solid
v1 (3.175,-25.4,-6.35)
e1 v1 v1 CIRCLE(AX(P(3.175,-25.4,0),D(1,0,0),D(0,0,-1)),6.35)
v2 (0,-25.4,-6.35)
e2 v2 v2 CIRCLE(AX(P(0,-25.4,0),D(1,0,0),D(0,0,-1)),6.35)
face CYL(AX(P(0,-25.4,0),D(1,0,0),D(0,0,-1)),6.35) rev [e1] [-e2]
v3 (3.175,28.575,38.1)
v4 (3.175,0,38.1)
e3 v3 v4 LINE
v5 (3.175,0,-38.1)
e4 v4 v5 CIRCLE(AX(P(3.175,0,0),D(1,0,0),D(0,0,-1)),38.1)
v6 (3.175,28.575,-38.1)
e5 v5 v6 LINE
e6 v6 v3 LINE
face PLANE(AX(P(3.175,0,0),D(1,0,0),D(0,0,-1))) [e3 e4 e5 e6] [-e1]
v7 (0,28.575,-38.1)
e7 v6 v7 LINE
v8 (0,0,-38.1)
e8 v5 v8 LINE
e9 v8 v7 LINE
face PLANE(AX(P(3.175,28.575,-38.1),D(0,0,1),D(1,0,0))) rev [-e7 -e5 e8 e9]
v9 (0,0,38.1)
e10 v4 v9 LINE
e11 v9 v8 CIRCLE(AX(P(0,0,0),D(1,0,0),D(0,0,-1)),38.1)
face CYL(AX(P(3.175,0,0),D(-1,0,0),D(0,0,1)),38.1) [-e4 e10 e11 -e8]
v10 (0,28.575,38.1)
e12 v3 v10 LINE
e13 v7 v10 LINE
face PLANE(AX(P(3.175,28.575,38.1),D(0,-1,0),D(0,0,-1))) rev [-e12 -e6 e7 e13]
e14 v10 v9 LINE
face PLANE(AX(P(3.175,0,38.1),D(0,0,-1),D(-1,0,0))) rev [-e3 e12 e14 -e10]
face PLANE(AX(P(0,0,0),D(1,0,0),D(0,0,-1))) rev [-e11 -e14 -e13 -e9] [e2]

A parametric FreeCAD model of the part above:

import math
import FreeCAD as App
import Part
import Sketcher

V = App.Vector
Q = App.Units.Quantity

doc = App.newDocument("Part")
body = doc.addObject("PartDesign::Body", "Body")

# Sketch on YZ plane
sketch1 = body.newObject("Sketcher::SketchObject", "Sketch")
sketch1.AttachmentSupport = (doc.getObject("YZ_Plane"), [""])
sketch1.MapMode = "FlatFace"
sketch1.addGeometry(Part.LineSegment(V(29, 38, 0), V(0, 38, 0)), False)
sketch1.addGeometry(Part.ArcOfCircle(Part.Circle(V(0, 0, 0), V(0, 0, 1), 38), math.radians(90), math.radians(270)), False)
sketch1.addGeometry(Part.LineSegment(V(0, -38, 0), V(29, -38, 0)), False)
sketch1.addGeometry(Part.LineSegment(V(29, -38, 0), V(29, 38, 0)), False)
sketch1.addConstraint(Sketcher.Constraint("Tangent", 0, 2, 1, 1))
sketch1.addConstraint(Sketcher.Constraint("Tangent", 1, 2, 2, 1))
sketch1.addConstraint(Sketcher.Constraint("Coincident", 2, 2, 3, 1))
sketch1.addConstraint(Sketcher.Constraint("Coincident", 3, 2, 0, 1))
sketch1.addConstraint(Sketcher.Constraint("Horizontal", 0))
sketch1.addConstraint(Sketcher.Constraint("Horizontal", 2))
sketch1.addConstraint(Sketcher.Constraint("Vertical", 3))
sketch1.addConstraint(Sketcher.Constraint("Coincident", 1, 3, -1, 1))
sketch1.addConstraint(Sketcher.Constraint("Radius", 1, Q("1.5 in")))
sketch1.addConstraint(Sketcher.Constraint("DistanceX", 0, 2, 0, 1, Q("1.125 in")))
pad1 = body.newObject("PartDesign::Pad", "Pad")
pad1.Profile = sketch1
pad1.Length = Q("0.125 in")

# Sketch on YZ plane
sketch2 = body.newObject("Sketcher::SketchObject", "Sketch001")
sketch2.AttachmentSupport = (doc.getObject("YZ_Plane"), [""])
sketch2.MapMode = "FlatFace"
sketch2.AttachmentOffset = App.Placement(V(0, 0, 0.125 * 25.4), App.Rotation())
sketch2.addGeometry(Part.Circle(V(-25, 0, 0), V(0, 0, 1), 6), False)
sketch2.addConstraint(Sketcher.Constraint("PointOnObject", 0, 3, -1))
sketch2.addConstraint(Sketcher.Constraint("Diameter", 0, Q("0.5 in")))
sketch2.addConstraint(Sketcher.Constraint("DistanceX", 0, 3, -1, 1, Q("1 in")))
pocket1 = body.newObject("PartDesign::Pocket", "Pocket")
pocket1.Profile = sketch2
pocket1.Type = "ThroughAll"

doc.recompute()
